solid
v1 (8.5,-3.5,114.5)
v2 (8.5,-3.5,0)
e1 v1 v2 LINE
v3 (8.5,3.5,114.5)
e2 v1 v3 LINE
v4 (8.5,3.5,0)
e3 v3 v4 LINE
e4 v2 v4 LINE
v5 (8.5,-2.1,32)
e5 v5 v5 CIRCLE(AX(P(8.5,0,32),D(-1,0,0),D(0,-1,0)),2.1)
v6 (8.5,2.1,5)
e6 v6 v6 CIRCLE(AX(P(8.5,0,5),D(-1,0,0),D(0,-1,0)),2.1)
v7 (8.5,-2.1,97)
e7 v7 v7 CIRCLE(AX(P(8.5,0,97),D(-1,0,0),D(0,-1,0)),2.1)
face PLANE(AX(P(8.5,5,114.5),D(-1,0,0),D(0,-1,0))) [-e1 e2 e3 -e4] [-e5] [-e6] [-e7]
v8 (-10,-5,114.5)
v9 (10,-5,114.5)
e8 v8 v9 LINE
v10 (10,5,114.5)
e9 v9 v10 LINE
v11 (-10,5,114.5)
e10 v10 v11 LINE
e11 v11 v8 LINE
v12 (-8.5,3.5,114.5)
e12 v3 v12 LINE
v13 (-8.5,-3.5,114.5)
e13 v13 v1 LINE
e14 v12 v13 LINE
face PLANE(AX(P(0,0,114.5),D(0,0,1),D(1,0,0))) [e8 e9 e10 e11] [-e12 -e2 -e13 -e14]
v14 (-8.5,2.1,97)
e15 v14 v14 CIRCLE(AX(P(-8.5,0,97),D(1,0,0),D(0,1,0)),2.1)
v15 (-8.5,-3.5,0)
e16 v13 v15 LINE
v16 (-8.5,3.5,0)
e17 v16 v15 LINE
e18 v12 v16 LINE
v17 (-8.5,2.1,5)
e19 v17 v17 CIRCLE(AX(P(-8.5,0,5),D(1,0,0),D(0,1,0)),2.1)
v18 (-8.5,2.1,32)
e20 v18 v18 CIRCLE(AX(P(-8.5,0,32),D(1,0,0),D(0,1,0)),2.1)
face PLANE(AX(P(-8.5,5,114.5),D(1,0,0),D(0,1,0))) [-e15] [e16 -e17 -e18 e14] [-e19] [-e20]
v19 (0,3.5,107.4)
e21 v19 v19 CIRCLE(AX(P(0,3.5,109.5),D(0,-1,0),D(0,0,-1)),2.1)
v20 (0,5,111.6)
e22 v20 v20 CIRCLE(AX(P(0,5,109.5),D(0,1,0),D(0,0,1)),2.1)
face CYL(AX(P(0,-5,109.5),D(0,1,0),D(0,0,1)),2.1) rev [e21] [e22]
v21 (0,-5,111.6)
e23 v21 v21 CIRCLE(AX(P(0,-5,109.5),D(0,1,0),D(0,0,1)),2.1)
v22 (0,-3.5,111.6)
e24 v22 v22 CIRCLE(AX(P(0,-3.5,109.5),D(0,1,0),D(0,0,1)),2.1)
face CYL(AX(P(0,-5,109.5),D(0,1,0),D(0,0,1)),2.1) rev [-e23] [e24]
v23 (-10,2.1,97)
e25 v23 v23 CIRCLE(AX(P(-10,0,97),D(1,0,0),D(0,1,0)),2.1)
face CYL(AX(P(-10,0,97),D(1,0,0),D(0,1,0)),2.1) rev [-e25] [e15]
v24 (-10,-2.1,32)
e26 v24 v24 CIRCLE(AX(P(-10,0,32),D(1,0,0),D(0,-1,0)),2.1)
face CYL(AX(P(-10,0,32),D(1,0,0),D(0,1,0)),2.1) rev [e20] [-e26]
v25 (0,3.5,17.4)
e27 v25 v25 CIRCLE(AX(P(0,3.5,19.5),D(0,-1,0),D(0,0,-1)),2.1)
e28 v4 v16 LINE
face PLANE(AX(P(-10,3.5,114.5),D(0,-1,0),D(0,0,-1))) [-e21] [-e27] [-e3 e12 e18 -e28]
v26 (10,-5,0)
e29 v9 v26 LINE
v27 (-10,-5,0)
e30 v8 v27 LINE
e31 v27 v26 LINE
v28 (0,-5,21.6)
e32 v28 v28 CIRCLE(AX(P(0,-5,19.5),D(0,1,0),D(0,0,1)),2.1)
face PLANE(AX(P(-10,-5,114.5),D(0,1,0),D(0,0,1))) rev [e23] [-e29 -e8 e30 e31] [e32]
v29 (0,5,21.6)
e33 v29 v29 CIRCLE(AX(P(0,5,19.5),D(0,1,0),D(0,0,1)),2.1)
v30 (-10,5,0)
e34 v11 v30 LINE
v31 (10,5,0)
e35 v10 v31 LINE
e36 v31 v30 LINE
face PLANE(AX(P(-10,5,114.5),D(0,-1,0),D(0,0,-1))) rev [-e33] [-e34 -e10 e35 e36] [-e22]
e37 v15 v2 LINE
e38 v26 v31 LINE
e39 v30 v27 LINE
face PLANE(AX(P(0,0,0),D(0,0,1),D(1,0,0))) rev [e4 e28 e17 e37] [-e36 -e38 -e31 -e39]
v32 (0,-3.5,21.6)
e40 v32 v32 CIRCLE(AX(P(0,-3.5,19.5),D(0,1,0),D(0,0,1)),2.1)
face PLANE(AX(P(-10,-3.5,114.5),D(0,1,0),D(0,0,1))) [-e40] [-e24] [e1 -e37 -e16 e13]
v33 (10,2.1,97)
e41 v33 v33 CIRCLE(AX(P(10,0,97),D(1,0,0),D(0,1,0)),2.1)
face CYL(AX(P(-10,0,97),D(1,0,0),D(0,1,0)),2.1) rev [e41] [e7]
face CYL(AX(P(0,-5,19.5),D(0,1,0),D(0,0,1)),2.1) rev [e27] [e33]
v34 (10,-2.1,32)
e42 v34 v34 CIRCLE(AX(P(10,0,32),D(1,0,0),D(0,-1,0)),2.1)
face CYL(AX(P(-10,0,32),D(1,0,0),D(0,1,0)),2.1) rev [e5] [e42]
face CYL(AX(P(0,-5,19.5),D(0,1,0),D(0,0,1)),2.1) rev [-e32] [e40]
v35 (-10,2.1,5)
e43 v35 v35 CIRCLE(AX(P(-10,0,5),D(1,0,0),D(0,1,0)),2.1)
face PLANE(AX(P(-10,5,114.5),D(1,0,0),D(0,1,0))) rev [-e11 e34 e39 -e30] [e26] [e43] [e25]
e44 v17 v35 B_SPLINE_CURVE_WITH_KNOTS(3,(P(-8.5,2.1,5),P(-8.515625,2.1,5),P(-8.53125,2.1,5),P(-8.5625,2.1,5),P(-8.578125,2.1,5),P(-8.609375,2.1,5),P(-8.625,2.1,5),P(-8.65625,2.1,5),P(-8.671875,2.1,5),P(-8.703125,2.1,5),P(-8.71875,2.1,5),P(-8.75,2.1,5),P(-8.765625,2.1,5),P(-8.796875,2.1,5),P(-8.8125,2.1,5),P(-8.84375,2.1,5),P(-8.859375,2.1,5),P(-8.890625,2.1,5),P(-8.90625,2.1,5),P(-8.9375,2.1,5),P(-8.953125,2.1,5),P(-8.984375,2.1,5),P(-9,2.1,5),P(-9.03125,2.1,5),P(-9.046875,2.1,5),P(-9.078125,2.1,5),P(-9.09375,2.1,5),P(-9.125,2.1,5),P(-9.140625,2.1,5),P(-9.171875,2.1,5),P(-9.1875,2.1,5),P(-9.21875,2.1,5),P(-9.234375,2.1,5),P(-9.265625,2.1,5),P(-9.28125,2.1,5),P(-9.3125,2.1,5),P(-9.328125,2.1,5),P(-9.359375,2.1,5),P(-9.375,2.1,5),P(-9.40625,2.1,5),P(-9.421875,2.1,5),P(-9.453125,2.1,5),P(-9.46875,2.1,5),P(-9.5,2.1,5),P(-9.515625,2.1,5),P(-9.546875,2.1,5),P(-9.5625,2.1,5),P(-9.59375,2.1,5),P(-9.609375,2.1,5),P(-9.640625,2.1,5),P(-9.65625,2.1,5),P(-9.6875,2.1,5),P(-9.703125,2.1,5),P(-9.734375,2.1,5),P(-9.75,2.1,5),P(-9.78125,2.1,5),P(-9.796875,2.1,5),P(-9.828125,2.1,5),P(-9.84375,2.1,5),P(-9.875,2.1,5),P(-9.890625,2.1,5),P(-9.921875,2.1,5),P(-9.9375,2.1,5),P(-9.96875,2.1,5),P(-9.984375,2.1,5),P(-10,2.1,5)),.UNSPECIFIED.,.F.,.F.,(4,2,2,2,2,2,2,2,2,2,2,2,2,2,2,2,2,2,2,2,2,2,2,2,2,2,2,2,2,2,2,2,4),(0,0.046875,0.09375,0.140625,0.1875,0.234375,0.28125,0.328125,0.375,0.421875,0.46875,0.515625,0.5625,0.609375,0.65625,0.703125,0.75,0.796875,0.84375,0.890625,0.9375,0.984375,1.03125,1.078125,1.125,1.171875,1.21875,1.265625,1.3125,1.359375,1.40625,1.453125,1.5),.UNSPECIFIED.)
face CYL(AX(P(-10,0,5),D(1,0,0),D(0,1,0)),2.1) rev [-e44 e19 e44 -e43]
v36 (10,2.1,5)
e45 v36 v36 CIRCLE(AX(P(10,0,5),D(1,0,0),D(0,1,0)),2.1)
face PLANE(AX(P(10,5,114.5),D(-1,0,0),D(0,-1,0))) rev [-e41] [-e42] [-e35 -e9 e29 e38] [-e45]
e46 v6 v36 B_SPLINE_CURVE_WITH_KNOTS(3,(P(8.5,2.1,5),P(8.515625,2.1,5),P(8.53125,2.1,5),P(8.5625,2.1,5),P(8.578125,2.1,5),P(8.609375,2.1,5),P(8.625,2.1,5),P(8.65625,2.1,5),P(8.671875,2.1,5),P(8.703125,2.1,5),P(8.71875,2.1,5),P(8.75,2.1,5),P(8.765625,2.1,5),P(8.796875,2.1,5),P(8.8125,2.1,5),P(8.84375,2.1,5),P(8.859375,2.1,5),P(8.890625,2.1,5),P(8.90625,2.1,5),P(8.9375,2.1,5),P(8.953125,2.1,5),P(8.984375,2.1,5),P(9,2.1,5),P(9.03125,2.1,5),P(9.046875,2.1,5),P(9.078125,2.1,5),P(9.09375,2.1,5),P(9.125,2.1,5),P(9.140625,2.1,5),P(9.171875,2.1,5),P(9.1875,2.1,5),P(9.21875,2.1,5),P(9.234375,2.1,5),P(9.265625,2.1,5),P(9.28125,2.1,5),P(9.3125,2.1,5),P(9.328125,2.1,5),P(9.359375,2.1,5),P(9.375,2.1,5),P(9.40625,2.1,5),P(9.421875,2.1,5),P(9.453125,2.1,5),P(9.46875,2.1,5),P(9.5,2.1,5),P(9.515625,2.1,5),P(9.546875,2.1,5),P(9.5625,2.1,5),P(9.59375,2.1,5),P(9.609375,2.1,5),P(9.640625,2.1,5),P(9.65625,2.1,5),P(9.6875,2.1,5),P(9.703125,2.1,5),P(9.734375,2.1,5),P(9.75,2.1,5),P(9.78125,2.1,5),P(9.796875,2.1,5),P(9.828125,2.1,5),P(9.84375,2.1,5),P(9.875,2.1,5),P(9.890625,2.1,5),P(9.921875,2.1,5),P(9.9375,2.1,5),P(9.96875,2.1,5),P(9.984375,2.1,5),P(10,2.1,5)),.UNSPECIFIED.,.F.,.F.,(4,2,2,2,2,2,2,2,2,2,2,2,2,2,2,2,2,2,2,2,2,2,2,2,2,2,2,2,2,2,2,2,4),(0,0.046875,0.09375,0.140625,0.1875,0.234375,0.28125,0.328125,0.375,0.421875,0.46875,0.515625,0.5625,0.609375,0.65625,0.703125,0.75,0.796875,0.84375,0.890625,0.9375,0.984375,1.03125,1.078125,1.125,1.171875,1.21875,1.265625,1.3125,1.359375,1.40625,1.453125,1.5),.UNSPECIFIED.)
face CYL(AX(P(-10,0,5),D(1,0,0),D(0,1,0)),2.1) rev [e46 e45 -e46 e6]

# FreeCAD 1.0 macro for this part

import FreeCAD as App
import Part
import Sketcher

V = App.Vector


def add_polygon(sketch, points):
    """Adds a closed chain of lines whose ends are joined by coincident constraints."""
    first, n = sketch.GeometryCount, len(points)
    for a, b in zip(points, points[1:] + points[:1]):
        sketch.addGeometry(Part.LineSegment(App.Vector(*a, 0), App.Vector(*b, 0)), False)
    for i in range(n):
        sketch.addConstraint(Sketcher.Constraint("Coincident", first + i, 2, first + (i + 1) % n, 1))

doc = App.newDocument("Part")
body = doc.addObject("PartDesign::Body", "Body")

# Sketch on XY plane
sketch1 = body.newObject("Sketcher::SketchObject", "Sketch")
sketch1.AttachmentSupport = (doc.getObject("XY_Plane"), [""])
sketch1.MapMode = "FlatFace"
add_polygon(sketch1, [(-10, 5), (-10, -5), (10, -5), (10, 5)])  # lines 0-3
add_polygon(sketch1, [(8.5, -3.5), (-8.5, -3.5), (-8.5, 3.5), (8.5, 3.5)])  # lines 4-7
sketch1.addConstraint(Sketcher.Constraint("Vertical", 0))
sketch1.addConstraint(Sketcher.Constraint("Horizontal", 1))
sketch1.addConstraint(Sketcher.Constraint("Vertical", 2))
sketch1.addConstraint(Sketcher.Constraint("Horizontal", 3))
sketch1.addConstraint(Sketcher.Constraint("Horizontal", 4))
sketch1.addConstraint(Sketcher.Constraint("Vertical", 5))
sketch1.addConstraint(Sketcher.Constraint("Horizontal", 6))
sketch1.addConstraint(Sketcher.Constraint("Vertical", 7))
sketch1.addConstraint(Sketcher.Constraint("Symmetric", 0, 2, 2, 2, -1, 1))
sketch1.addConstraint(Sketcher.Constraint("Symmetric", 4, 2, 6, 2, -1, 1))
sketch1.addConstraint(Sketcher.Constraint("DistanceX", 1, 1, 1, 2, 20.0))
sketch1.addConstraint(Sketcher.Constraint("DistanceX", 4, 2, 4, 1, 17.0))
sketch1.addConstraint(Sketcher.Constraint("DistanceY", 0, 2, 0, 1, 10.0))
sketch1.addConstraint(Sketcher.Constraint("DistanceY", 5, 1, 5, 2, 7.0))
pad1 = body.newObject("PartDesign::Pad", "Pad")
pad1.Profile = sketch1
pad1.Length = 114.5

# Sketch on YZ plane
sketch2 = body.newObject("Sketcher::SketchObject", "Sketch001")
sketch2.AttachmentSupport = (doc.getObject("YZ_Plane"), [""])
sketch2.MapMode = "FlatFace"
sketch2.AttachmentOffset = App.Placement(V(0, 0, 10), App.Rotation())
sketch2.addGeometry(Part.Circle(V(0, 97, 0), V(0, 0, 1), 2.1), False)
sketch2.addGeometry(Part.Circle(V(0, 32, 0), V(0, 0, 1), 2.1), False)
sketch2.addConstraint(Sketcher.Constraint("Equal", 0, 1))
sketch2.addConstraint(Sketcher.Constraint("PointOnObject", 0, 3, -2))
sketch2.addConstraint(Sketcher.Constraint("PointOnObject", 1, 3, -2))
sketch2.addConstraint(Sketcher.Constraint("Diameter", 0, 4.2))
sketch2.addConstraint(Sketcher.Constraint("DistanceY", -1, 1, 0, 3, 97.0))
sketch2.addConstraint(Sketcher.Constraint("DistanceY", -1, 1, 1, 3, 32.0))
pocket1 = body.newObject("PartDesign::Pocket", "Pocket")
pocket1.Profile = sketch2
pocket1.Type = "ThroughAll"

# Sketch on YZ plane
sketch3 = body.newObject("Sketcher::SketchObject", "Sketch002")
sketch3.AttachmentSupport = (doc.getObject("YZ_Plane"), [""])
sketch3.MapMode = "FlatFace"
sketch3.AttachmentOffset = App.Placement(V(0, 0, 10), App.Rotation())
sketch3.addGeometry(Part.Circle(V(0, 5, 0), V(0, 0, 1), 2.1), False)
sketch3.addConstraint(Sketcher.Constraint("PointOnObject", 0, 3, -2))
sketch3.addConstraint(Sketcher.Constraint("Diameter", 0, 4.2))
sketch3.addConstraint(Sketcher.Constraint("DistanceY", -1, 1, 0, 3, 5.0))
pocket2 = body.newObject("PartDesign::Pocket", "Pocket001")
pocket2.Profile = sketch3
pocket2.Type = "ThroughAll"

# Sketch on XZ plane
sketch4 = body.newObject("Sketcher::SketchObject", "Sketch003")
sketch4.AttachmentSupport = (doc.getObject("XZ_Plane"), [""])
sketch4.MapMode = "FlatFace"
sketch4.AttachmentOffset = App.Placement(V(0, 0, -5), App.Rotation())
sketch4.addGeometry(Part.Circle(V(0, 19.5, 0), V(0, 0, 1), 2.1), False)
sketch4.addGeometry(Part.Circle(V(0, 109.5, 0), V(0, 0, 1), 2.1), False)
sketch4.addConstraint(Sketcher.Constraint("Equal", 0, 1))
sketch4.addConstraint(Sketcher.Constraint("PointOnObject", 0, 3, -2))
sketch4.addConstraint(Sketcher.Constraint("PointOnObject", 1, 3, -2))
sketch4.addConstraint(Sketcher.Constraint("Diameter", 0, 4.2))
sketch4.addConstraint(Sketcher.Constraint("DistanceY", 0, 3, 1, 3, 90.0))
sketch4.addConstraint(Sketcher.Constraint("DistanceY", -1, 1, 0, 3, 19.5))
pocket3 = body.newObject("PartDesign::Pocket", "Pocket002")
pocket3.Profile = sketch4
pocket3.Type = "ThroughAll"
pocket3.Reversed = True

doc.recompute()
